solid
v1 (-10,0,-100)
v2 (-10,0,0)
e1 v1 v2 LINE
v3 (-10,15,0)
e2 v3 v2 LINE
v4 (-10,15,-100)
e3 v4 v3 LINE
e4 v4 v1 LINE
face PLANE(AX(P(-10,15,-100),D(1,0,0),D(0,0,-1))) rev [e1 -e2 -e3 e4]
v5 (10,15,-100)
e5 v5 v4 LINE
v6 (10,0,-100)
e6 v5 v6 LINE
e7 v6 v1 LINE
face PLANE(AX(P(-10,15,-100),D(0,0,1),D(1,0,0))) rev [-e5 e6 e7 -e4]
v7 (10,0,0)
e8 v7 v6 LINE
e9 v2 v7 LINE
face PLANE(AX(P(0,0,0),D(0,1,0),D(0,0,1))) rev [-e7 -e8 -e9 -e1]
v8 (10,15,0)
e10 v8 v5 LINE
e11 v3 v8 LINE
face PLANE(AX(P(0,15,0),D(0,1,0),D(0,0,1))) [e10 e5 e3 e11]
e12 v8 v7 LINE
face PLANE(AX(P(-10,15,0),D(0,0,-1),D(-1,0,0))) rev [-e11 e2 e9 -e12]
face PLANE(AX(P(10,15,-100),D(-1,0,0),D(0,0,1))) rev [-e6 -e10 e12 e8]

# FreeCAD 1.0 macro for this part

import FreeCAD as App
import Part
import Sketcher
from FreeCAD import Vector


def add_polygon(sketch, points):
    """Adds a closed chain of lines whose ends are joined by coincident constraints."""
    first, n = sketch.GeometryCount, len(points)
    for a, b in zip(points, points[1:] + points[:1]):
        sketch.addGeometry(Part.LineSegment(App.Vector(*a, 0), App.Vector(*b, 0)), False)
    for i in range(n):
        sketch.addConstraint(Sketcher.Constraint("Coincident", first + i, 2, first + (i + 1) % n, 1))

doc = App.newDocument("Part")
body = doc.addObject("PartDesign::Body", "Body")

# Sketch on XZ plane
sketch1 = body.newObject("Sketcher::SketchObject", "Sketch")
sketch1.AttachmentSupport = (doc.getObject("XZ_Plane"), [""])
sketch1.MapMode = "FlatFace"
add_polygon(sketch1, [(-10, -100), (-10, 0), (10, 0), (10, -100)])  # lines 0-3
sketch1.addConstraint([
    Sketcher.Constraint("Vertical", 0),
    Sketcher.Constraint("Horizontal", 1),
    Sketcher.Constraint("Vertical", 2),
    Sketcher.Constraint("Horizontal", 3),
    Sketcher.Constraint("Symmetric", 0, 2, 1, 2, -1, 1),
    Sketcher.Constraint("DistanceX", 1, 1, 1, 2, 20.0),
    Sketcher.Constraint("DistanceY", 0, 1, 0, 2, 100.0),
])
pad1 = body.newObject("PartDesign::Pad", "Pad")
pad1.Profile = sketch1
pad1.Length = 15
pad1.Reversed = True

doc.recompute()
